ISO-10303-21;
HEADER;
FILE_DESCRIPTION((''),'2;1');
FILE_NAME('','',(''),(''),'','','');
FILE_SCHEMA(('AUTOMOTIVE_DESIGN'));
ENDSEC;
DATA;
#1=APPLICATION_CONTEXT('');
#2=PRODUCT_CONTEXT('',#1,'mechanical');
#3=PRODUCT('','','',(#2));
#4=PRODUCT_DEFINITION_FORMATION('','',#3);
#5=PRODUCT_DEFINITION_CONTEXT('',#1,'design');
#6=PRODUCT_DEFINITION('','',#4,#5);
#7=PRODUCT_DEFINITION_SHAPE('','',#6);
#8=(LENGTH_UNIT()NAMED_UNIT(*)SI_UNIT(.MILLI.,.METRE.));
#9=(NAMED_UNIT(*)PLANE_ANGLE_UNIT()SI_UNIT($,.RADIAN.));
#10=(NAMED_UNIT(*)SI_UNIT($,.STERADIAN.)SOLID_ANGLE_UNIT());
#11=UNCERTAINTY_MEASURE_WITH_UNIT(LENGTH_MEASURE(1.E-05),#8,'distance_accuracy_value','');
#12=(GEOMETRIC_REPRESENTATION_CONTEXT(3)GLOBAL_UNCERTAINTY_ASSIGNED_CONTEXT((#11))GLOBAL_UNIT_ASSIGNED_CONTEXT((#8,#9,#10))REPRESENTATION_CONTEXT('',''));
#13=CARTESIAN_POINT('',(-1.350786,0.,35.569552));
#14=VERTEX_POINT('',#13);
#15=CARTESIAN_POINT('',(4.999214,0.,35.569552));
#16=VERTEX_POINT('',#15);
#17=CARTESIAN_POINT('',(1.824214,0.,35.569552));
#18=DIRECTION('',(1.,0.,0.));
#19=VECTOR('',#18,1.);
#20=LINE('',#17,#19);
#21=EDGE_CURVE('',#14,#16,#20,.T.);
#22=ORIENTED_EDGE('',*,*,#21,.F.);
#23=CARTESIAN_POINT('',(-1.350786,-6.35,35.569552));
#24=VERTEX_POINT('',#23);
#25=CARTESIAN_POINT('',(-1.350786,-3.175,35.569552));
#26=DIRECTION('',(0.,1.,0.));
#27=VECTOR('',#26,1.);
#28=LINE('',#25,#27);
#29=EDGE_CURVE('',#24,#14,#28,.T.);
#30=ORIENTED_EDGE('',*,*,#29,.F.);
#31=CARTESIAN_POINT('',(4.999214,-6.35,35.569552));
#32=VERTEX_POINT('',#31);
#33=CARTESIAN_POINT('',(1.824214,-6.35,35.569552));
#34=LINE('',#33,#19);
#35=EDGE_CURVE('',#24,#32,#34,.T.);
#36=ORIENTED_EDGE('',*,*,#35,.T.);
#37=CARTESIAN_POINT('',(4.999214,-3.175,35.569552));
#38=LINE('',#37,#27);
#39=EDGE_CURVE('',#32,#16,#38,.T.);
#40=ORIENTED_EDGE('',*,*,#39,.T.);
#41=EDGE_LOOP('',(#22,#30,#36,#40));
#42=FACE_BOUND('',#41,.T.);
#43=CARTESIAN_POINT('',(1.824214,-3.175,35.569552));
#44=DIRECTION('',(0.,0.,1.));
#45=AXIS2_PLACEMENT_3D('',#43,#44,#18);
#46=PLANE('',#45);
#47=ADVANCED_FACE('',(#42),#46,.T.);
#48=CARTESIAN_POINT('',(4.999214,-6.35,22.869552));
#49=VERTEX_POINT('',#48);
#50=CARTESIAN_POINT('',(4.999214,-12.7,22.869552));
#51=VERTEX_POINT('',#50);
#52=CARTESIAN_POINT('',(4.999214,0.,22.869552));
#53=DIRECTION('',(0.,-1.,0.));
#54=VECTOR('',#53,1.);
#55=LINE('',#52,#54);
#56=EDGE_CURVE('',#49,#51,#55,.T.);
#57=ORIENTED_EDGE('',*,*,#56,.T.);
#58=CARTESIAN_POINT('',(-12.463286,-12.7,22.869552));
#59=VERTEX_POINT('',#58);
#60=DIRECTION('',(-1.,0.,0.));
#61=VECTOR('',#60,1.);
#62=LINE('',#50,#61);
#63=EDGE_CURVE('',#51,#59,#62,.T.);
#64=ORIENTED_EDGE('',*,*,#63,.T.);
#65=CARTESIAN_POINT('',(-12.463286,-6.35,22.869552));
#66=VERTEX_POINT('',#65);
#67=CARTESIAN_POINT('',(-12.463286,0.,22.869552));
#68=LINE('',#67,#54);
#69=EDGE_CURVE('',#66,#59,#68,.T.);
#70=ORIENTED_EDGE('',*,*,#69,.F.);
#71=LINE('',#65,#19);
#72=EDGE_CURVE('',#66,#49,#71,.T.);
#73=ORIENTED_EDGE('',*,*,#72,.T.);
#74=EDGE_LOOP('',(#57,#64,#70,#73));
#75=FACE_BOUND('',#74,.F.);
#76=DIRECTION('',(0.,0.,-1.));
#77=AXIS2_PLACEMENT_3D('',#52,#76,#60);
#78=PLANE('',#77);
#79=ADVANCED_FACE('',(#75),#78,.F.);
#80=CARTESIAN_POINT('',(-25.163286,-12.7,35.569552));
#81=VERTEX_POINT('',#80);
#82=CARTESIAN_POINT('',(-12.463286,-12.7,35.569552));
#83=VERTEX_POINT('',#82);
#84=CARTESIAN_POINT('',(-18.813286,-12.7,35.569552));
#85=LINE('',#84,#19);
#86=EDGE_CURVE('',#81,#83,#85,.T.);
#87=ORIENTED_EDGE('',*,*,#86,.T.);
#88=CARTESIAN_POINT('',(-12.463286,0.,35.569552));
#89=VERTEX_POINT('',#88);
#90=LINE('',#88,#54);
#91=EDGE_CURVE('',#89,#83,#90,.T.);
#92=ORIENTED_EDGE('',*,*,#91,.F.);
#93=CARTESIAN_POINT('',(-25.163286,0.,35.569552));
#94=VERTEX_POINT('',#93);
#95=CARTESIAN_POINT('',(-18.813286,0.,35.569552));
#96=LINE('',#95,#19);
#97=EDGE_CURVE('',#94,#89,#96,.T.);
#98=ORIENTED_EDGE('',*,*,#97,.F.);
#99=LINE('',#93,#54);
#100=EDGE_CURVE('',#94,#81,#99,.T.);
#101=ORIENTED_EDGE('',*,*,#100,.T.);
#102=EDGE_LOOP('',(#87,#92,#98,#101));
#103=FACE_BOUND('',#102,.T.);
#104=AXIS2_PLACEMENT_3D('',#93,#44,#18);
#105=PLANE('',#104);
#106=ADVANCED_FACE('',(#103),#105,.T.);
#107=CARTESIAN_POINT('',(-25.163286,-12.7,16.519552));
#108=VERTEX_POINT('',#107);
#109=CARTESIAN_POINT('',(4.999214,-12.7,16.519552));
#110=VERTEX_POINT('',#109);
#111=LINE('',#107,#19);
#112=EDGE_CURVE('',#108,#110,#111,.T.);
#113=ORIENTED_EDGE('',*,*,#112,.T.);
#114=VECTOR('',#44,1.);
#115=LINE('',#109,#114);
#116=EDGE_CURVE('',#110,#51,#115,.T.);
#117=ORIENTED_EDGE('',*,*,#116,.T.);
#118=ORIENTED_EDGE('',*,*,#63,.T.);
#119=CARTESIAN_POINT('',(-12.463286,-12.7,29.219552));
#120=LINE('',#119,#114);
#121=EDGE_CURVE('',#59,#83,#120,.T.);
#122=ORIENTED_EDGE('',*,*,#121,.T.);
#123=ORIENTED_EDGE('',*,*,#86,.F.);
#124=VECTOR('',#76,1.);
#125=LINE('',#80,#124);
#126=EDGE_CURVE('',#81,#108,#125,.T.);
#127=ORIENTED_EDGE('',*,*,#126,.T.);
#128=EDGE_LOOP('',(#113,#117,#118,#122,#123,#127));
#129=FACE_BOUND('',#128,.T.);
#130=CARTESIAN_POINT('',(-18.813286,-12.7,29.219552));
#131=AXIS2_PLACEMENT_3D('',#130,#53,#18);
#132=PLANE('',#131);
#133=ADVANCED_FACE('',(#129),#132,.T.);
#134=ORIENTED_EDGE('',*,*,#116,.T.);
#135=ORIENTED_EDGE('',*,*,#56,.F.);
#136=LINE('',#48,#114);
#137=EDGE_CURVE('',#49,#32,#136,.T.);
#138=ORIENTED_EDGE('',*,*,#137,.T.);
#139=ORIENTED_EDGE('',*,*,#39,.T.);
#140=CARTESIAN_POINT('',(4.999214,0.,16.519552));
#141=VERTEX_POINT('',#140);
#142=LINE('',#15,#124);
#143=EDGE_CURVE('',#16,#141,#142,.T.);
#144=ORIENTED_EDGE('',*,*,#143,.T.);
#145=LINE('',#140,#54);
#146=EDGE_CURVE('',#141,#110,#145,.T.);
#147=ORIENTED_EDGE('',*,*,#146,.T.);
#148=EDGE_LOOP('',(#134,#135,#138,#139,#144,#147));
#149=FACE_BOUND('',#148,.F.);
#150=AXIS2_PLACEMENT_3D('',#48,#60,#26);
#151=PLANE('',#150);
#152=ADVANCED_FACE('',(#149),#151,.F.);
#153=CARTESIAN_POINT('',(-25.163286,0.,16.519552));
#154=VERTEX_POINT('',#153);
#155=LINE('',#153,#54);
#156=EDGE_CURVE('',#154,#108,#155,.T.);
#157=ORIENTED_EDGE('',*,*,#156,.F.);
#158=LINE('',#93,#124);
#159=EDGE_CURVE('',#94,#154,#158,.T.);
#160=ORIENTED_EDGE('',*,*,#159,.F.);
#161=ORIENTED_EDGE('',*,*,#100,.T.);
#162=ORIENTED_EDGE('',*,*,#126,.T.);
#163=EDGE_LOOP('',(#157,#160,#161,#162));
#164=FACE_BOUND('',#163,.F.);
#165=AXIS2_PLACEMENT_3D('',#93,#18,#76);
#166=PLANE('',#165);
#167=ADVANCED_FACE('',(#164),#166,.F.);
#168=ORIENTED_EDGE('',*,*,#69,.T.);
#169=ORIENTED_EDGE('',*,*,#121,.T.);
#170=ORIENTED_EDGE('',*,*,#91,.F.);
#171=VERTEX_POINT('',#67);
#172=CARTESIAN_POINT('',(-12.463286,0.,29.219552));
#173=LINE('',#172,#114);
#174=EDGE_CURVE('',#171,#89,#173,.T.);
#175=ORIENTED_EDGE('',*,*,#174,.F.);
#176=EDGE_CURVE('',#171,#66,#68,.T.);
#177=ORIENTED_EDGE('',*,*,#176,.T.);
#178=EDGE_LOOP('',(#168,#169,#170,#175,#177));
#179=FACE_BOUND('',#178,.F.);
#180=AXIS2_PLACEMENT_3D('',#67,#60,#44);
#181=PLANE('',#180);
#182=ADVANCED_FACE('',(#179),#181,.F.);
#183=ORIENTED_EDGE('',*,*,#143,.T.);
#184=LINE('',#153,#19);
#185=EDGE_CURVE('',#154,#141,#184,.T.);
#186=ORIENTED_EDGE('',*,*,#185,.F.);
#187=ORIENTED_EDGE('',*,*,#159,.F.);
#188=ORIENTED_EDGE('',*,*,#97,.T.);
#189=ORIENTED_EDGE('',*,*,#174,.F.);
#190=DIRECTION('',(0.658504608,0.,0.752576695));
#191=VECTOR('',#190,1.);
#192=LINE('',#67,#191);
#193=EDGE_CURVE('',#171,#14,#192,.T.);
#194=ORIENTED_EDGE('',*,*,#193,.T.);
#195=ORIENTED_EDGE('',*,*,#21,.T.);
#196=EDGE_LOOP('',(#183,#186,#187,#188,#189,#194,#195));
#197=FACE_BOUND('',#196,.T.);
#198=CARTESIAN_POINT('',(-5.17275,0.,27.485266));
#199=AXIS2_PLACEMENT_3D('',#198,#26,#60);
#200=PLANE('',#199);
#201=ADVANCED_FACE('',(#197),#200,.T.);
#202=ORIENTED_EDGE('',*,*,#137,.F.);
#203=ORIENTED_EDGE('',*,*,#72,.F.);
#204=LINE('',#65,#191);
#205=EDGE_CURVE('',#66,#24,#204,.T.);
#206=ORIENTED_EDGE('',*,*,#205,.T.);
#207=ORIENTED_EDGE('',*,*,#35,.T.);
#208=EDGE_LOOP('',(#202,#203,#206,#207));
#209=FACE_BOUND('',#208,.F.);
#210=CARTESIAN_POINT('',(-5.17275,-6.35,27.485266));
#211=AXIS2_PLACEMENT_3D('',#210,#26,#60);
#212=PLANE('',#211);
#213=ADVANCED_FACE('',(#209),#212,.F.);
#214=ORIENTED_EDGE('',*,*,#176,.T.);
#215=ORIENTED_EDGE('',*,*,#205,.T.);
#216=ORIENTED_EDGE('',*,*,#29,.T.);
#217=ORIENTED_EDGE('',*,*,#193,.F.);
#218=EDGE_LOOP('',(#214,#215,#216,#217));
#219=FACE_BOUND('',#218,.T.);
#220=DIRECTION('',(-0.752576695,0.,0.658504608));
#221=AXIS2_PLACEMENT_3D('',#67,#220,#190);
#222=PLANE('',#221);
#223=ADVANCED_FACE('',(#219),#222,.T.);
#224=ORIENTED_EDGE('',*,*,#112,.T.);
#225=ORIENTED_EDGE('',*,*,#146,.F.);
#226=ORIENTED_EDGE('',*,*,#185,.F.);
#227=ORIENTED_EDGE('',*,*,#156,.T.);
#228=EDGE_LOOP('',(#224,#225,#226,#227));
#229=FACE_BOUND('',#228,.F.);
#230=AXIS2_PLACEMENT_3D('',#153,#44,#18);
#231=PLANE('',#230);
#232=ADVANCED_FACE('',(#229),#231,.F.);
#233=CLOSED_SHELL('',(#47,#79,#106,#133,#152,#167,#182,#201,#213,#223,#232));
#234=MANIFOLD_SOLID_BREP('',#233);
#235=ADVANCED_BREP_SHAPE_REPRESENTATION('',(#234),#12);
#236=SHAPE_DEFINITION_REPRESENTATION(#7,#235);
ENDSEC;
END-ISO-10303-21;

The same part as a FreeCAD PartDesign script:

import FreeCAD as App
import Part
import Sketcher

V = App.Vector
Q = App.Units.Quantity


def add_polygon(sketch, points):
    """Adds a closed chain of lines whose ends are joined by coincident constraints."""
    first, n = sketch.GeometryCount, len(points)
    for a, b in zip(points, points[1:] + points[:1]):
        sketch.addGeometry(Part.LineSegment(App.Vector(*a, 0), App.Vector(*b, 0)), False)
    for i in range(n):
        sketch.addConstraint(Sketcher.Constraint("Coincident", first + i, 2, first + (i + 1) % n, 1))

doc = App.newDocument("Part")
body = doc.addObject("PartDesign::Body", "Body")

# Sketch on XZ plane
sketch1 = body.newObject("Sketcher::SketchObject", "Sketch")
sketch1.AttachmentSupport = (doc.getObject("XZ_Plane"), [""])
sketch1.MapMode = "FlatFace"
add_polygon(sketch1, [(-25.163286, 35.569552), (-25.163286, 16.519552), (4.999214, 16.519552), (4.999214, 22.869552), (-12.463286, 22.869552), (-12.463286, 35.569552)])  # lines 0-5
sketch1.addConstraint([
    Sketcher.Constraint("Vertical", 0),
    Sketcher.Constraint("Horizontal", 1),
    Sketcher.Constraint("Vertical", 2),
    Sketcher.Constraint("Horizontal", 3),
    Sketcher.Constraint("Vertical", 4),
    Sketcher.Constraint("Horizontal", 5),
    Sketcher.Constraint("Equal", 5, 4),
    Sketcher.Constraint("DistanceX", 5, 2, 5, 1, Q("0.5 in")),
    Sketcher.Constraint("DistanceY", 0, 2, 0, 1, Q("0.75 in")),
    Sketcher.Constraint("DistanceX", 1, 1, 1, 2, Q("1.1875 in")),
    Sketcher.Constraint("DistanceY", -1, 1, 2, 2, Q("22.869552 mm")),
    Sketcher.Constraint("DistanceX", 0, 2, -1, 1, Q("25.163286 mm")),
])
pad1 = body.newObject("PartDesign::Pad", "Pad")
pad1.Profile = sketch1
pad1.Length = Q("0.5 in")

# Sketch on XY plane
sketch2 = body.newObject("Sketcher::SketchObject", "Sketch001")
sketch2.AttachmentSupport = (doc.getObject("XY_Plane"), [""])
sketch2.MapMode = "FlatFace"
sketch2.AttachmentOffset = App.Placement(V(0, 0, 22.869552), App.Rotation())
add_polygon(sketch2, [(-1.350786, 0), (-1.350786, -6.35), (4.999214, -6.35), (4.999214, 0)])  # lines 0-3
sketch2.addConstraint([
    Sketcher.Constraint("Vertical", 0),
    Sketcher.Constraint("Horizontal", 1),
    Sketcher.Constraint("Vertical", 2),
    Sketcher.Constraint("Horizontal", 3),
    Sketcher.Constraint("PointOnObject", 2, 2, -1),
    Sketcher.Constraint("Equal", 3, 0),
    Sketcher.Constraint("DistanceX", 1, 1, 1, 2, Q("0.25 in")),
    Sketcher.Constraint("DistanceX", 0, 2, -1, 1, Q("1.350786 mm")),
])
pad2 = body.newObject("PartDesign::Pad", "Pad001")
pad2.Profile = sketch2
pad2.Length = Q("0.5 in")

# Sketch on XZ plane
sketch3 = body.newObject("Sketcher::SketchObject", "Sketch002")
sketch3.AttachmentSupport = (doc.getObject("XZ_Plane"), [""])
sketch3.MapMode = "FlatFace"
add_polygon(sketch3, [(-12.463286, 22.869552), (-1.350786, 35.569552), (-1.350786, 22.869552)])  # lines 0-2
sketch3.addConstraint([
    Sketcher.Constraint("Vertical", 1),
    Sketcher.Constraint("Horizontal", 2),
    Sketcher.Constraint("DistanceY", 1, 2, 1, 1, Q("0.5 in")),
    Sketcher.Constraint("DistanceX", 2, 2, 2, 1, Q("0.4375 in")),
    Sketcher.Constraint("DistanceY", -1, 1, 1, 2, Q("22.869552 mm")),
    Sketcher.Constraint("DistanceX", 0, 2, -1, 1, Q("1.350786 mm")),
])
pad3 = body.newObject("PartDesign::Pad", "Pad002")
pad3.Profile = sketch3
pad3.Length = Q("0.25 in")

doc.recompute()
